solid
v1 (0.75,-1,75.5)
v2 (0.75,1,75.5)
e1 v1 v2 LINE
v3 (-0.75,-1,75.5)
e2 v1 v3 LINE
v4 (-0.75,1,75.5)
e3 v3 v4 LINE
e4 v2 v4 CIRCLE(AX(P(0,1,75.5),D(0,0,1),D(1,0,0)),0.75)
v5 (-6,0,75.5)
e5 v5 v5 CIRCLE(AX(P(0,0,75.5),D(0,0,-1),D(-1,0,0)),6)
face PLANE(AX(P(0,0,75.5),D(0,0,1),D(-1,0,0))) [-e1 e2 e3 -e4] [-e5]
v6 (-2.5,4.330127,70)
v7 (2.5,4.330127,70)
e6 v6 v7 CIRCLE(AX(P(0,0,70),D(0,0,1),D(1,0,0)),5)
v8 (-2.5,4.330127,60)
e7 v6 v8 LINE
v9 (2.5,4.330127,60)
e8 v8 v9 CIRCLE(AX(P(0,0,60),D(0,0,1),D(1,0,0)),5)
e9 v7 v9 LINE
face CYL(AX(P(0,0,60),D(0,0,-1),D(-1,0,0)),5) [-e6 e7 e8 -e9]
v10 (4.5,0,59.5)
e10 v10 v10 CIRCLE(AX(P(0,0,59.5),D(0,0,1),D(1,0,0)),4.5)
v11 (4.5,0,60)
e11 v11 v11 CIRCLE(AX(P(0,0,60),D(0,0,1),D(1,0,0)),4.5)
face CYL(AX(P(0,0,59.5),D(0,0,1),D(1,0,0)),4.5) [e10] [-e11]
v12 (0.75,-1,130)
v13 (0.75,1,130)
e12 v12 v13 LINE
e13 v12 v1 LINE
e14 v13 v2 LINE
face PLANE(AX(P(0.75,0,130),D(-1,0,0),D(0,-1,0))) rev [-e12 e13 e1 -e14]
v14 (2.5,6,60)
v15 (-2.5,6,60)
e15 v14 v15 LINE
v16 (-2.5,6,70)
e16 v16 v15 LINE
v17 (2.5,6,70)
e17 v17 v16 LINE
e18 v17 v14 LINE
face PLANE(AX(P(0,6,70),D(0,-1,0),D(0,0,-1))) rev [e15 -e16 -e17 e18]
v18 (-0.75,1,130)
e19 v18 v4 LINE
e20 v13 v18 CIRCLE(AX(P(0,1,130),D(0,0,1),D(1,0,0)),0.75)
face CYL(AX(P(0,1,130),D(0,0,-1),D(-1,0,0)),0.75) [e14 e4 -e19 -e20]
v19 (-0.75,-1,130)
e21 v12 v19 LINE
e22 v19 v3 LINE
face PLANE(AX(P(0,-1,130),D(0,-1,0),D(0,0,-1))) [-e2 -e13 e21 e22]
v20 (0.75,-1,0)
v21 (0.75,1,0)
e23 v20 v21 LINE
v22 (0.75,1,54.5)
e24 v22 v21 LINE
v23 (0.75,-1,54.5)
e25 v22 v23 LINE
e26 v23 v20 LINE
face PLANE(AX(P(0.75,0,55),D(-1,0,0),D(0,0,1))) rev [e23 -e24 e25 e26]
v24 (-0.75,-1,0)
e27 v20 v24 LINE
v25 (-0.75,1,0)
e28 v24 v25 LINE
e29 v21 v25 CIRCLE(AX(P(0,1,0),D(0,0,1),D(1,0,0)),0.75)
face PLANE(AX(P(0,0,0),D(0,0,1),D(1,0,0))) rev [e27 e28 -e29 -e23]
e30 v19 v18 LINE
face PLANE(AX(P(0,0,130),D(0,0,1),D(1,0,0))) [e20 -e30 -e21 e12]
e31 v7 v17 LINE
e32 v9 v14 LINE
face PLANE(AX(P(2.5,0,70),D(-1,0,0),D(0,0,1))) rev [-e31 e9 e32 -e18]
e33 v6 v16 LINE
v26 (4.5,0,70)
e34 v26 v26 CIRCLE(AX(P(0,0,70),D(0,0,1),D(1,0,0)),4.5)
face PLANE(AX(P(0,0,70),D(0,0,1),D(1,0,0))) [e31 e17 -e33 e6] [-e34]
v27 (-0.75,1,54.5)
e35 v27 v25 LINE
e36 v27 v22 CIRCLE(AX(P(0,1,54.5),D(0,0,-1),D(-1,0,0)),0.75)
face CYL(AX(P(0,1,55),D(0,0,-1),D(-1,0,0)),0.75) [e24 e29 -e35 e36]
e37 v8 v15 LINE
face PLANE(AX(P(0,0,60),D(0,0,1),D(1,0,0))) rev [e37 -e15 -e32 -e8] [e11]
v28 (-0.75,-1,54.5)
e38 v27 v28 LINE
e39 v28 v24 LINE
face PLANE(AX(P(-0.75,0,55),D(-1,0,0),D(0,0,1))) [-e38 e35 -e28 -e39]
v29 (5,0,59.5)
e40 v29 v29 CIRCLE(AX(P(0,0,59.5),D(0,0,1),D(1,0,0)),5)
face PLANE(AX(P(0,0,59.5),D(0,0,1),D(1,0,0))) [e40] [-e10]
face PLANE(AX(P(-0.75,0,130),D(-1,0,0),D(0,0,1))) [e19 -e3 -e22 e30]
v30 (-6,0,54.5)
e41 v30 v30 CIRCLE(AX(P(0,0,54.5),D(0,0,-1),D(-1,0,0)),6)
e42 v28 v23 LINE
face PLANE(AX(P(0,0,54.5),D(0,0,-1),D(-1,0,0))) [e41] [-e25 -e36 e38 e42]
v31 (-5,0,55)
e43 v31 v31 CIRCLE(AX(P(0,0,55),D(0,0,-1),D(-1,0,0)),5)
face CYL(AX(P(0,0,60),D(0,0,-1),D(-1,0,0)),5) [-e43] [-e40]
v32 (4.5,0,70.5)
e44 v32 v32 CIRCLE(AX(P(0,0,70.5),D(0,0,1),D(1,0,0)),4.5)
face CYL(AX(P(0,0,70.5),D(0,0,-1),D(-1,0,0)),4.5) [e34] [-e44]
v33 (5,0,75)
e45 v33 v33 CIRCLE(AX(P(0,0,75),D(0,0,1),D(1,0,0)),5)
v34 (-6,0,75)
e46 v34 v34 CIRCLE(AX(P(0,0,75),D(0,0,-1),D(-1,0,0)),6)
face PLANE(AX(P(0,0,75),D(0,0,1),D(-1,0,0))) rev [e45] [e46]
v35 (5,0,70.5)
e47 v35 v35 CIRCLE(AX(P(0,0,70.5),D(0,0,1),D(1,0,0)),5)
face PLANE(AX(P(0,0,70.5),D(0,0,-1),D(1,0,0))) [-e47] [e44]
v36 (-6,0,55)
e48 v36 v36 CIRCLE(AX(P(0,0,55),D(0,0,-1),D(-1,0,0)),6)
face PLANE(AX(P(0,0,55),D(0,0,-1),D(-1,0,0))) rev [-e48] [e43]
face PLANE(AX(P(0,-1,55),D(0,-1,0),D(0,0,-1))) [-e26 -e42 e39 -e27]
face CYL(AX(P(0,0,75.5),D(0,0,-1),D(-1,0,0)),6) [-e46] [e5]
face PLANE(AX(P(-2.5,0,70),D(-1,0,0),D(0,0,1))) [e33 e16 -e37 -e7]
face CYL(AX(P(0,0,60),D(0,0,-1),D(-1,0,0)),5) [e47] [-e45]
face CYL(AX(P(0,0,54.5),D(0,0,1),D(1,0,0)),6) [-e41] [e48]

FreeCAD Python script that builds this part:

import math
import FreeCAD as App
import Part
import Sketcher

V = App.Vector
Q = App.Units.Quantity

doc = App.newDocument("Part")
params = doc.addObject("Spreadsheet::Sheet", "Params")
for row, (alias, value) in enumerate([
    ("sketch1_height", "2 mm"),
    ("sketch1_radius", "0.75 mm"),
    ("pad1_length", "55 mm"),
    ("sketch2_diameter", "10 mm"),
    ("pad2_length", "5 mm"),
    ("sketch3_radius", "5 mm"),
    ("sketch3_width", "5 mm"),
    ("pad3_length", "10 mm"),
    ("sketch4_diameter", "10 mm"),
    ("pad4_length", "5 mm"),
    ("sketch5_height", "2 mm"),
    ("sketch5_radius", "0.75 mm"),
    ("pad5_length", "55 mm"),
    ("sketch6_diameter", "10 mm"),
    ("sketch6_diameter2", "9 mm"),
    ("pocket1_length", "0.5 mm"),
    ("sketch7_diameter", "12 mm"),
    ("pad6_length", "0.5 mm"),
], start=1):
    params.set(f"A{row}", alias)
    params.set(f"B{row}", "=" + value)
    params.setAlias(f"B{row}", alias)

body = doc.addObject("PartDesign::Body", "Body")

sketch1 = body.newObject("Sketcher::SketchObject", "Sketch")
sketch1.AttachmentSupport = (doc.getObject("XY_Plane"), [""])
sketch1.MapMode = "FlatFace"
sketch1.addGeometry(Part.ArcOfCircle(Part.Circle(V(0, 1, 0), V(0, 0, 1), 0.8), math.radians(0), math.radians(180)), False)
sketch1.addGeometry(Part.LineSegment(V(-0.8, 1, 0), V(-0.8, -1, 0)), False)
sketch1.addGeometry(Part.LineSegment(V(-0.8, -1, 0), V(0.8, -1, 0)), False)
sketch1.addGeometry(Part.LineSegment(V(0.8, -1, 0), V(0.8, 1, 0)), False)
sketch1.addConstraint(Sketcher.Constraint("Tangent", 0, 2, 1, 1))
sketch1.addConstraint(Sketcher.Constraint("Coincident", 1, 2, 2, 1))
sketch1.addConstraint(Sketcher.Constraint("Coincident", 2, 2, 3, 1))
sketch1.addConstraint(Sketcher.Constraint("Tangent", 3, 2, 0, 1))
sketch1.addConstraint(Sketcher.Constraint("Vertical", 1))
sketch1.addConstraint(Sketcher.Constraint("Horizontal", 2))
sketch1.addConstraint(Sketcher.Constraint("Vertical", 3))
sketch1.addConstraint(Sketcher.Constraint("Symmetric", 0, 2, 2, 2, -1, 1))
sketch1.addConstraint(Sketcher.Constraint("DistanceY", 1, 2, 1, 1, Q("2 mm")))
sketch1.addConstraint(Sketcher.Constraint("Radius", 0, Q("0.75 mm")))
sketch1.setExpression("Constraints[8]", "Params.sketch1_height")
sketch1.setExpression("Constraints[9]", "Params.sketch1_radius")
pad1 = body.newObject("PartDesign::Pad", "Pad")
pad1.Profile = sketch1
pad1.setExpression("Length", "Params.pad1_length")

sketch2 = body.newObject("Sketcher::SketchObject", "Sketch001")
sketch2.AttachmentSupport = (doc.getObject("XY_Plane"), [""])
sketch2.MapMode = "FlatFace"
sketch2.AttachmentOffset = App.Placement(V(0, 0, 55), App.Rotation())
sketch2.addGeometry(Part.Circle(V(0, 0, 0), V(0, 0, 1), 5), False)
sketch2.addConstraint(Sketcher.Constraint("Coincident", 0, 3, -1, 1))
sketch2.addConstraint(Sketcher.Constraint("Diameter", 0, Q("10 mm")))
sketch2.setExpression("Constraints[1]", "Params.sketch2_diameter")
pad2 = body.newObject("PartDesign::Pad", "Pad001")
pad2.Profile = sketch2
pad2.setExpression("Length", "Params.pad2_length")

sketch3 = body.newObject("Sketcher::SketchObject", "Sketch002")
sketch3.AttachmentSupport = (doc.getObject("XY_Plane"), [""])
sketch3.MapMode = "FlatFace"
sketch3.AttachmentOffset = App.Placement(V(0, 0, 60), App.Rotation())
sketch3.addGeometry(Part.ArcOfCircle(Part.Circle(V(0, 0, 0), V(0, 0, 1), 5), math.radians(120), math.radians(360)), False)
sketch3.addGeometry(Part.ArcOfCircle(Part.Circle(V(0, 0, 0), V(0, 0, 1), 5), math.radians(0), math.radians(60)), False)
sketch3.addGeometry(Part.LineSegment(V(2.5, 4.3, 0), V(2.5, 6, 0)), False)
sketch3.addGeometry(Part.LineSegment(V(2.5, 6, 0), V(-2.5, 6, 0)), False)
sketch3.addGeometry(Part.LineSegment(V(-2.5, 6, 0), V(-2.5, 4.3, 0)), False)
sketch3.addConstraint(Sketcher.Constraint("Tangent", 0, 2, 1, 1))
sketch3.addConstraint(Sketcher.Constraint("Coincident", 1, 2, 2, 1))
sketch3.addConstraint(Sketcher.Constraint("Coincident", 2, 2, 3, 1))
sketch3.addConstraint(Sketcher.Constraint("Coincident", 3, 2, 4, 1))
sketch3.addConstraint(Sketcher.Constraint("Coincident", 4, 2, 0, 1))
sketch3.addConstraint(Sketcher.Constraint("Vertical", 2))
sketch3.addConstraint(Sketcher.Constraint("Horizontal", 3))
sketch3.addConstraint(Sketcher.Constraint("Vertical", 4))
sketch3.addConstraint(Sketcher.Constraint("Coincident", 0, 3, -1, 1))
sketch3.addConstraint(Sketcher.Constraint("Equal", 0, 1))
sketch3.addConstraint(Sketcher.Constraint("PointOnObject", 0, 2, -1))
sketch3.addConstraint(Sketcher.Constraint("Horizontal", 1, 2, 4, 2))
sketch3.addConstraint(Sketcher.Constraint("Radius", 0, Q("5 mm")))
sketch3.addConstraint(Sketcher.Constraint("DistanceX", 3, 2, 3, 1, Q("5 mm")))
sketch3.addConstraint(Sketcher.Constraint("DistanceY", -1, 1, 2, 2, Q("6 mm")))
sketch3.setExpression("Constraints[12]", "Params.sketch3_radius")
sketch3.setExpression("Constraints[13]", "Params.sketch3_width")
pad3 = body.newObject("PartDesign::Pad", "Pad002")
pad3.Profile = sketch3
pad3.setExpression("Length", "Params.pad3_length")

sketch4 = body.newObject("Sketcher::SketchObject", "Sketch003")
sketch4.AttachmentSupport = (doc.getObject("XY_Plane"), [""])
sketch4.MapMode = "FlatFace"
sketch4.AttachmentOffset = App.Placement(V(0, 0, 70), App.Rotation())
sketch4.addGeometry(Part.Circle(V(0, 0, 0), V(0, 0, 1), 5), False)
sketch4.addConstraint(Sketcher.Constraint("Coincident", 0, 3, -1, 1))
sketch4.addConstraint(Sketcher.Constraint("Diameter", 0, Q("10 mm")))
sketch4.setExpression("Constraints[1]", "Params.sketch4_diameter")
pad4 = body.newObject("PartDesign::Pad", "Pad003")
pad4.Profile = sketch4
pad4.setExpression("Length", "Params.pad4_length")

sketch5 = body.newObject("Sketcher::SketchObject", "Sketch004")
sketch5.AttachmentSupport = (doc.getObject("XY_Plane"), [""])
sketch5.MapMode = "FlatFace"
sketch5.AttachmentOffset = App.Placement(V(0, 0, 75), App.Rotation())
sketch5.addGeometry(Part.ArcOfCircle(Part.Circle(V(0, 1, 0), V(0, 0, 1), 0.8), math.radians(0), math.radians(180)), False)
sketch5.addGeometry(Part.LineSegment(V(-0.8, 1, 0), V(-0.8, -1, 0)), False)
sketch5.addGeometry(Part.LineSegment(V(-0.8, -1, 0), V(0.8, -1, 0)), False)
sketch5.addGeometry(Part.LineSegment(V(0.8, -1, 0), V(0.8, 1, 0)), False)
sketch5.addConstraint(Sketcher.Constraint("Tangent", 0, 2, 1, 1))
sketch5.addConstraint(Sketcher.Constraint("Coincident", 1, 2, 2, 1))
sketch5.addConstraint(Sketcher.Constraint("Coincident", 2, 2, 3, 1))
sketch5.addConstraint(Sketcher.Constraint("Tangent", 3, 2, 0, 1))
sketch5.addConstraint(Sketcher.Constraint("Vertical", 1))
sketch5.addConstraint(Sketcher.Constraint("Horizontal", 2))
sketch5.addConstraint(Sketcher.Constraint("Vertical", 3))
sketch5.addConstraint(Sketcher.Constraint("Symmetric", 0, 2, 2, 2, -1, 1))
sketch5.addConstraint(Sketcher.Constraint("DistanceY", 1, 2, 1, 1, Q("2 mm")))
sketch5.addConstraint(Sketcher.Constraint("Radius", 0, Q("0.75 mm")))
sketch5.setExpression("Constraints[8]", "Params.sketch5_height")
sketch5.setExpression("Constraints[9]", "Params.sketch5_radius")
pad5 = body.newObject("PartDesign::Pad", "Pad004")
pad5.Profile = sketch5
pad5.setExpression("Length", "Params.pad5_length")

sketch6 = body.newObject("Sketcher::SketchObject", "Sketch005")
sketch6.AttachmentSupport = (doc.getObject("XY_Plane"), [""])
sketch6.MapMode = "FlatFace"
sketch6.AttachmentOffset = App.Placement(V(0, 0, 59.5), App.Rotation())
sketch6.addGeometry(Part.Circle(V(0, 0, 0), V(0, 0, 1), 5), False)
sketch6.addGeometry(Part.Circle(V(0, 0, 0), V(0, 0, 1), 4.5), False)
sketch6.addConstraint(Sketcher.Constraint("Coincident", 0, 3, -1, 1))
sketch6.addConstraint(Sketcher.Constraint("Coincident", 1, 3, -1, 1))
sketch6.addConstraint(Sketcher.Constraint("Diameter", 0, Q("10 mm")))
sketch6.addConstraint(Sketcher.Constraint("Diameter", 1, Q("9 mm")))
sketch6.setExpression("Constraints[2]", "Params.sketch6_diameter")
sketch6.setExpression("Constraints[3]", "Params.sketch6_diameter2")
pocket1 = body.newObject("PartDesign::Pocket", "Pocket")
pocket1.Profile = sketch6
pocket1.setExpression("Length", "Params.pocket1_length")
pocket1.Reversed = True
doc.recompute()

datumplane = body.newObject("PartDesign::Plane", "DatumPlane")
datumplane.AttachmentSupport = (doc.getObject("XY_Plane"), [""])
datumplane.MapMode = "FlatFace"
datumplane.AttachmentOffset = App.Placement(V(0, 0, 65), App.Rotation())
mirrored = body.newObject("PartDesign::Mirrored", "Mirrored")
mirrored.Originals = [pocket1]
mirrored.MirrorPlane = (datumplane, [""])
body.Tip = mirrored

sketch7 = body.newObject("Sketcher::SketchObject", "Sketch006")
sketch7.AttachmentSupport = (doc.getObject("XY_Plane"), [""])
sketch7.MapMode = "FlatFace"
sketch7.AttachmentOffset = App.Placement(V(0, 0, 55), App.Rotation())
sketch7.addGeometry(Part.Circle(V(0, 0, 0), V(0, 0, 1), 6), False)
sketch7.addConstraint(Sketcher.Constraint("Coincident", 0, 3, -1, 1))
sketch7.addConstraint(Sketcher.Constraint("Diameter", 0, Q("12 mm")))
sketch7.setExpression("Constraints[1]", "Params.sketch7_diameter")
pad6 = body.newObject("PartDesign::Pad", "Pad005")
pad6.Profile = sketch7
pad6.setExpression("Length", "Params.pad6_length")
pad6.Reversed = True
doc.recompute()

datumplane2 = body.newObject("PartDesign::Plane", "DatumPlane001")
datumplane2.AttachmentSupport = (doc.getObject("XY_Plane"), [""])
datumplane2.MapMode = "FlatFace"
datumplane2.AttachmentOffset = App.Placement(V(0, 0, 65), App.Rotation())
mirrored2 = body.newObject("PartDesign::Mirrored", "Mirrored001")
mirrored2.Originals = [pad6]
mirrored2.MirrorPlane = (datumplane2, [""])
body.Tip = mirrored2

doc.recompute()
